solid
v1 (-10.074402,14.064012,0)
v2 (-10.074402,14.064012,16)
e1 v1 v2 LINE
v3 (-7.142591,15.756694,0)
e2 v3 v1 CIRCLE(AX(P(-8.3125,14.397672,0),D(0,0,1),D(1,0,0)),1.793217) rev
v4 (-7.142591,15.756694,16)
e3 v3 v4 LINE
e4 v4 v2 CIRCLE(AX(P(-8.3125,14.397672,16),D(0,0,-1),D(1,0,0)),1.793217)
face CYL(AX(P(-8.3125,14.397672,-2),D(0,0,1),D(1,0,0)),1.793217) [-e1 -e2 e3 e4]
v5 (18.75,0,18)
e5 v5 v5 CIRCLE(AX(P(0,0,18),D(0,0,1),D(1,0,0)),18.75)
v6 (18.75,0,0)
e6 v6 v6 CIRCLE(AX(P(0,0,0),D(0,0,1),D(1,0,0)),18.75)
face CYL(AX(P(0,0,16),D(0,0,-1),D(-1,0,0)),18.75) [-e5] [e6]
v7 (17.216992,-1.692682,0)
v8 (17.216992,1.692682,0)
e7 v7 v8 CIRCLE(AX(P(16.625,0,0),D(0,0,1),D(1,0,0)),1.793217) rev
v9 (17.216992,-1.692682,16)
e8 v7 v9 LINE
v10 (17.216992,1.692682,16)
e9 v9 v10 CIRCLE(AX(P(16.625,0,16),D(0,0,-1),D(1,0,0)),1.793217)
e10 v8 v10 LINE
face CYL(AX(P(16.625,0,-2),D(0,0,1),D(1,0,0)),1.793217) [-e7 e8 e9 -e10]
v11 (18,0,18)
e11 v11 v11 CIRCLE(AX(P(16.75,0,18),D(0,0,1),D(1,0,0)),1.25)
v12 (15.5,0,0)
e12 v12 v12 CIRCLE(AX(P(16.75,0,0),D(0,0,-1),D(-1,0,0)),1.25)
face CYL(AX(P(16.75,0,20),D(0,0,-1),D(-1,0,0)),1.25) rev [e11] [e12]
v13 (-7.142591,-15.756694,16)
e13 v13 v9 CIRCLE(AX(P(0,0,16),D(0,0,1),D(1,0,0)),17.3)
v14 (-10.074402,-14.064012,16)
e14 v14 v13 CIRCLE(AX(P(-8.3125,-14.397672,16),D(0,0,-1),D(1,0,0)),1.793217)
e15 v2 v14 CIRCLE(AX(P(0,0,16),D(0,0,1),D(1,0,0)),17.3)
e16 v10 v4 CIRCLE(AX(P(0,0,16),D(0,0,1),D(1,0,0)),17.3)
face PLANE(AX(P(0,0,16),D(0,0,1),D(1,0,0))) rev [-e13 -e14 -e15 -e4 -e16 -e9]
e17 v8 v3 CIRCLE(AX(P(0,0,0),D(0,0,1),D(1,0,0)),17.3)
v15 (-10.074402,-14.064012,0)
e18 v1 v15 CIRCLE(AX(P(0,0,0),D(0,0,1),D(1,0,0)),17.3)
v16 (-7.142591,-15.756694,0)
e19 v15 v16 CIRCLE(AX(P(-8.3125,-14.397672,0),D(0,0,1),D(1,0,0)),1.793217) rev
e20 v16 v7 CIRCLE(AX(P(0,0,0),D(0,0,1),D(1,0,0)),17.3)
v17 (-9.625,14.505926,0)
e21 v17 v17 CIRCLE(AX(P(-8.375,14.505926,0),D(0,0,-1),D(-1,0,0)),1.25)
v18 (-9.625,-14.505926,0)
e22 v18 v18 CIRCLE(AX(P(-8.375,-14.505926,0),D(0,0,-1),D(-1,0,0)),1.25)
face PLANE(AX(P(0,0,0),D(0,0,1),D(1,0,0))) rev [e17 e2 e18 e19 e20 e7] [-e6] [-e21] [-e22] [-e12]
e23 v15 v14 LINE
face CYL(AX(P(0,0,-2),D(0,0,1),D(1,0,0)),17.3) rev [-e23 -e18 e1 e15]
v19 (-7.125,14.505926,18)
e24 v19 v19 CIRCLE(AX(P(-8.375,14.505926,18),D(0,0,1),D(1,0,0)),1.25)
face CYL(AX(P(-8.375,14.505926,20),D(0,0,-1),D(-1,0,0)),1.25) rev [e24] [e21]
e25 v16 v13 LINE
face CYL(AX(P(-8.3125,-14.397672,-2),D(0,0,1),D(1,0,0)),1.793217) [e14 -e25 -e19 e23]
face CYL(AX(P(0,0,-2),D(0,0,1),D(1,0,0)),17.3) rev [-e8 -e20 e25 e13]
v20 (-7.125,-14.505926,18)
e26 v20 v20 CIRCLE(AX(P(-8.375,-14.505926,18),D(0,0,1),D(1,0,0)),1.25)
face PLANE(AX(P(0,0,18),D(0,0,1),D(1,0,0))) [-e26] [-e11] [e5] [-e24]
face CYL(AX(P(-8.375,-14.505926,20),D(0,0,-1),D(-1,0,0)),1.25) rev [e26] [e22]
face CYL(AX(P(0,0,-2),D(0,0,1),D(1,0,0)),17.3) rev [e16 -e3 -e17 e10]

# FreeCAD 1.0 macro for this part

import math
import FreeCAD as App
import Part
import Sketcher

doc = App.newDocument("Part")
body = doc.addObject("PartDesign::Body", "Body")

# Sketch on XY plane
sketch1 = body.newObject("Sketcher::SketchObject", "Sketch")
sketch1.AttachmentSupport = (doc.getObject("XY_Plane"), [""])
sketch1.MapMode = "FlatFace"
sketch1.addGeometry(Part.Circle(App.Vector(0, 0, 0), App.Vector(0, 0, 1), 18.75), False)
sketch1.addGeometry(Part.Circle(App.Vector(0, 0, 0), App.Vector(0, 0, 1), 14.5), False)
sketch1.addConstraint(Sketcher.Constraint("Coincident", 0, 3, -1, 1))
sketch1.addConstraint(Sketcher.Constraint("Coincident", 1, 3, -1, 1))
sketch1.addConstraint(Sketcher.Constraint("Diameter", 1, 29.0))
sketch1.addConstraint(Sketcher.Constraint("Diameter", 0, 37.5))
pad1 = body.newObject("PartDesign::Pad", "Pad")
pad1.Profile = sketch1
pad1.Length = 16

# Sketch on XY plane
sketch2 = body.newObject("Sketcher::SketchObject", "Sketch001")
sketch2.AttachmentSupport = (doc.getObject("XY_Plane"), [""])
sketch2.MapMode = "FlatFace"
sketch2.AttachmentOffset = App.Placement(App.Vector(0, 0, 16), App.Rotation())
sketch2.addGeometry(Part.Circle(App.Vector(16.625, 0, 0), App.Vector(0, 0, 1), 1.25), False)
sketch2.addGeometry(Part.Circle(App.Vector(-8.3125, -14.397672, 0), App.Vector(0, 0, 1), 1.25), False)
sketch2.addGeometry(Part.Circle(App.Vector(-8.3125, 14.397672, 0), App.Vector(0, 0, 1), 1.25), False)
sketch2.addConstraint(Sketcher.Constraint("Equal", 0, 1))
sketch2.addConstraint(Sketcher.Constraint("Equal", 1, 2))
sketch2.addConstraint(Sketcher.Constraint("Symmetric", 1, 3, 2, 3, -1))
sketch2.addConstraint(Sketcher.Constraint("PointOnObject", 0, 3, -1))
sketch2.addConstraint(Sketcher.Constraint("Diameter", 0, 2.5))
sketch2.addConstraint(Sketcher.Constraint("DistanceX", -1, 1, 0, 3, 16.625))
sketch2.addConstraint(Sketcher.Constraint("DistanceX", 1, 3, -1, 1, 8.3125))
sketch2.addConstraint(Sketcher.Constraint("DistanceY", 1, 3, -1, 1, 14.397672))
pocket1 = body.newObject("PartDesign::Pocket", "Pocket")
pocket1.Profile = sketch2
pocket1.Length = 18

# Sketch on XY plane
sketch3 = body.newObject("Sketcher::SketchObject", "Sketch002")
sketch3.AttachmentSupport = (doc.getObject("XY_Plane"), [""])
sketch3.MapMode = "FlatFace"
sketch3.AttachmentOffset = App.Placement(App.Vector(0, 0, 16), App.Rotation())
sketch3.addGeometry(Part.ArcOfCircle(Part.Circle(App.Vector(0, 0, 0), App.Vector(0, 0, 1), 17.3), math.radians(-114.385032), math.radians(-5.614968)), False)
sketch3.addGeometry(Part.ArcOfCircle(Part.Circle(App.Vector(16.625, 0, 0), App.Vector(0, 0, 1), 1.793217), math.radians(70.723411), math.radians(289.276589)), False)
sketch3.addGeometry(Part.ArcOfCircle(Part.Circle(App.Vector(0, 0, 0), App.Vector(0, 0, 1), 17.3), math.radians(5.614968), math.radians(114.385032)), False)
sketch3.addGeometry(Part.ArcOfCircle(Part.Circle(App.Vector(-8.3125, 14.397672, 0), App.Vector(0, 0, 1), 1.793217), math.radians(-169.276589), math.radians(49.276589)), False)
sketch3.addGeometry(Part.ArcOfCircle(Part.Circle(App.Vector(0, 0, 0), App.Vector(0, 0, 1), 17.3), math.radians(125.614968), math.radians(234.385032)), False)
sketch3.addGeometry(Part.ArcOfCircle(Part.Circle(App.Vector(-8.3125, -14.397672, 0), App.Vector(0, 0, 1), 1.793217), math.radians(-49.276589), math.radians(169.276589)), False)
sketch3.addConstraint(Sketcher.Constraint("Coincident", 0, 2, 1, 2))
sketch3.addConstraint(Sketcher.Constraint("Coincident", 1, 1, 2, 1))
sketch3.addConstraint(Sketcher.Constraint("Coincident", 2, 2, 3, 2))
sketch3.addConstraint(Sketcher.Constraint("Coincident", 3, 1, 4, 1))
sketch3.addConstraint(Sketcher.Constraint("Coincident", 4, 2, 5, 2))
sketch3.addConstraint(Sketcher.Constraint("Coincident", 5, 1, 0, 1))
sketch3.addConstraint(Sketcher.Constraint("Coincident", 0, 3, -1, 1))
sketch3.addConstraint(Sketcher.Constraint("Coincident", 2, 3, -1, 1))
sketch3.addConstraint(Sketcher.Constraint("Coincident", 4, 3, -1, 1))
sketch3.addConstraint(Sketcher.Constraint("Equal", 0, 2))
sketch3.addConstraint(Sketcher.Constraint("Equal", 1, 3))
sketch3.addConstraint(Sketcher.Constraint("Equal", 2, 4))
sketch3.addConstraint(Sketcher.Constraint("Equal", 3, 5))
sketch3.addConstraint(Sketcher.Constraint("Symmetric", 3, 3, 5, 3, -1))
sketch3.addConstraint(Sketcher.Constraint("PointOnObject", 1, 3, -1))
sketch3.addConstraint(Sketcher.Constraint("Radius", 0, 17.3))
sketch3.addConstraint(Sketcher.Constraint("DistanceX", -1, 1, 1, 3, 16.625))
sketch3.addConstraint(Sketcher.Constraint("Radius", 1, 1.793217))
sketch3.addConstraint(Sketcher.Constraint("DistanceX", 3, 3, -1, 1, 8.3125))
sketch3.addConstraint(Sketcher.Constraint("DistanceX", 3, 1, -1, 1, 10.074402))
pocket2 = body.newObject("PartDesign::Pocket", "Pocket001")
pocket2.Profile = sketch3
pocket2.Length = 18

# Sketch on XY plane
sketch4 = body.newObject("Sketcher::SketchObject", "Sketch003")
sketch4.AttachmentSupport = (doc.getObject("XY_Plane"), [""])
sketch4.MapMode = "FlatFace"
sketch4.AttachmentOffset = App.Placement(App.Vector(0, 0, 16), App.Rotation())
sketch4.addGeometry(Part.Circle(App.Vector(0, 0, 0), App.Vector(0, 0, 1), 18.75), False)
sketch4.addConstraint(Sketcher.Constraint("Coincident", 0, 3, -1, 1))
sketch4.addConstraint(Sketcher.Constraint("Diameter", 0, 37.5))
pad2 = body.newObject("PartDesign::Pad", "Pad001")
pad2.Profile = sketch4
pad2.Length = 2

# Sketch on XY plane
sketch5 = body.newObject("Sketcher::SketchObject", "Sketch004")
sketch5.AttachmentSupport = (doc.getObject("XY_Plane"), [""])
sketch5.MapMode = "FlatFace"
sketch5.addGeometry(Part.Circle(App.Vector(-8.3125, -14.397672, 0), App.Vector(0, 0, 1), 1.25), False)
sketch5.addGeometry(Part.Circle(App.Vector(16.625, 0, 0), App.Vector(0, 0, 1), 1.25), False)
sketch5.addGeometry(Part.Circle(App.Vector(-8.3125, 14.397672, 0), App.Vector(0, 0, 1), 1.25), False)
sketch5.addConstraint(Sketcher.Constraint("Equal", 0, 1))
sketch5.addConstraint(Sketcher.Constraint("Equal", 1, 2))
sketch5.addConstraint(Sketcher.Constraint("Symmetric", 0, 3, 2, 3, -1))
sketch5.addConstraint(Sketcher.Constraint("PointOnObject", 1, 3, -1))
sketch5.addConstraint(Sketcher.Constraint("Diameter", 0, 2.5))
sketch5.addConstraint(Sketcher.Constraint("DistanceX", -1, 1, 1, 3, 16.625))
sketch5.addConstraint(Sketcher.Constraint("DistanceX", 0, 3, -1, 1, 8.3125))
sketch5.addConstraint(Sketcher.Constraint("DistanceY", 0, 3, -1, 1, 14.397672))
pad3 = body.newObject("PartDesign::Pad", "Pad002")
pad3.Profile = sketch5
pad3.Length = 16

# Sketch on XY plane
sketch6 = body.newObject("Sketcher::SketchObject", "Sketch005")
sketch6.AttachmentSupport = (doc.getObject("XY_Plane"), [""])
sketch6.MapMode = "FlatFace"
sketch6.addGeometry(Part.Circle(App.Vector(-8.375, 14.505926, 0), App.Vector(0, 0, 1), 1.25), False)
sketch6.addGeometry(Part.Circle(App.Vector(-8.375, -14.505926, 0), App.Vector(0, 0, 1), 1.25), False)
sketch6.addGeometry(Part.Circle(App.Vector(16.75, 0, 0), App.Vector(0, 0, 1), 1.25), False)
sketch6.addConstraint(Sketcher.Constraint("Equal", 0, 1))
sketch6.addConstraint(Sketcher.Constraint("Equal", 1, 2))
sketch6.addConstraint(Sketcher.Constraint("Symmetric", 0, 3, 1, 3, -1))
sketch6.addConstraint(Sketcher.Constraint("PointOnObject", 2, 3, -1))
sketch6.addConstraint(Sketcher.Constraint("Diameter", 0, 2.5))
sketch6.addConstraint(Sketcher.Constraint("DistanceX", -1, 1, 2, 3, 16.75))
sketch6.addConstraint(Sketcher.Constraint("DistanceX", 0, 3, -1, 1, 8.375))
sketch6.addConstraint(Sketcher.Constraint("DistanceY", 1, 3, 0, 3, 29.011851))
pocket3 = body.newObject("PartDesign::Pocket", "Pocket002")
pocket3.Profile = sketch6
pocket3.Length = 20
pocket3.Reversed = True

doc.recompute()
